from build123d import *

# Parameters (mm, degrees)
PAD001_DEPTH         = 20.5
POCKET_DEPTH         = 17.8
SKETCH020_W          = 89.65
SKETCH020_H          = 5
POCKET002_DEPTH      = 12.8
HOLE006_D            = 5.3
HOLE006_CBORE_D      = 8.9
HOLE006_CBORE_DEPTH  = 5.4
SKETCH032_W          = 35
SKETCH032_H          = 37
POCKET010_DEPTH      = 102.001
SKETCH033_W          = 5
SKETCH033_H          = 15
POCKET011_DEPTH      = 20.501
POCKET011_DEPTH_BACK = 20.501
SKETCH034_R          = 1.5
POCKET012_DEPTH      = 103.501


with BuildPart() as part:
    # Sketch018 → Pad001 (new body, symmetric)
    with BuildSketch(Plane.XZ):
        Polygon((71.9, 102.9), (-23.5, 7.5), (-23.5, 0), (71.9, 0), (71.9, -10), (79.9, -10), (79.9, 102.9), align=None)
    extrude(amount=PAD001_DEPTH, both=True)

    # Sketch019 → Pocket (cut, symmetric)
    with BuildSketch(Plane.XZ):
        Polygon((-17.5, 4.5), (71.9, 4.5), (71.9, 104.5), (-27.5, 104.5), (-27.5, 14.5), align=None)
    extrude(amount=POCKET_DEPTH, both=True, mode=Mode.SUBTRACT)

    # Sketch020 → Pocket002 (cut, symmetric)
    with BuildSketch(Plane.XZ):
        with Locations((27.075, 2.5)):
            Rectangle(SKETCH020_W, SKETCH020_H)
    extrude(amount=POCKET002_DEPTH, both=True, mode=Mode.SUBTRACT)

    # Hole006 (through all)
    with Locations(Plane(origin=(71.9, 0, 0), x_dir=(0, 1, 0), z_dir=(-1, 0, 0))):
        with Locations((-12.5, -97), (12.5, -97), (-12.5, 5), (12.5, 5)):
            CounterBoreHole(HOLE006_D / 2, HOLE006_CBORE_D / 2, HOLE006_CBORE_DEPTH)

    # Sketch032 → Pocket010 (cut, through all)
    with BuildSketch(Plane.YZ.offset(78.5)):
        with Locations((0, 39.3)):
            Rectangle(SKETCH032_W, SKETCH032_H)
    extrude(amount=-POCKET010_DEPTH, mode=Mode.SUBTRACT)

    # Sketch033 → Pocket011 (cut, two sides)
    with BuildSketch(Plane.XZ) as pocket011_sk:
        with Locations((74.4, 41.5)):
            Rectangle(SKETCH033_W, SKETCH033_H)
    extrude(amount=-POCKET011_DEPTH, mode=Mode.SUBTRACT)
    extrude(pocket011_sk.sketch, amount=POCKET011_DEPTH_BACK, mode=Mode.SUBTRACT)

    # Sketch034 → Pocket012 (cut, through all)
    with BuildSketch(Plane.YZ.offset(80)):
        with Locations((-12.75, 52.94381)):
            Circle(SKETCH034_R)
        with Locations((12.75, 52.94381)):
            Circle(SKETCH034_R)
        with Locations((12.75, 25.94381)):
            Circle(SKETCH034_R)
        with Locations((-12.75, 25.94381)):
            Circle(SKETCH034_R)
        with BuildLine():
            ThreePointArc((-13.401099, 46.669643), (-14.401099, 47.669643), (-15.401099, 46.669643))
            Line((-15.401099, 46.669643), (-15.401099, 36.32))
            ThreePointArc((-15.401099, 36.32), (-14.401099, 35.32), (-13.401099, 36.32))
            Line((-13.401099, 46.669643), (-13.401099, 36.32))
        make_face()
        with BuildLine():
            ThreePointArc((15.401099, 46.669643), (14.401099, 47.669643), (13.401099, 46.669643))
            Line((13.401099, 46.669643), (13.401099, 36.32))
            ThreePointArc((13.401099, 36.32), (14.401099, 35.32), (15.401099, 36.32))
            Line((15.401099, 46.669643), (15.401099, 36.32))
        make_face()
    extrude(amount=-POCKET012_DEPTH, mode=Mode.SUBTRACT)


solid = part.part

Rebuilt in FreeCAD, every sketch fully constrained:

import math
import FreeCAD as App
import Part
import Sketcher

V = App.Vector
Q = App.Units.Quantity


def add_polygon(sketch, points):
    """Adds a closed chain of lines whose ends are joined by coincident constraints."""
    first, n = sketch.GeometryCount, len(points)
    for a, b in zip(points, points[1:] + points[:1]):
        sketch.addGeometry(Part.LineSegment(App.Vector(*a, 0), App.Vector(*b, 0)), False)
    for i in range(n):
        sketch.addConstraint(Sketcher.Constraint("Coincident", first + i, 2, first + (i + 1) % n, 1))

doc = App.newDocument("Part")
body = doc.addObject("PartDesign::Body", "Body")

# Sketch on XZ plane
sketch1 = body.newObject("Sketcher::SketchObject", "Sketch")
sketch1.AttachmentSupport = (doc.getObject("XZ_Plane"), [""])
sketch1.MapMode = "FlatFace"
add_polygon(sketch1, [(72, 103), (-24, 8), (-24, 0), (72, 0), (72, -10), (80, -10), (80, 103)])  # lines 0-6
sketch1.addConstraint([
    Sketcher.Constraint("Vertical", 1),
    Sketcher.Constraint("Horizontal", 2),
    Sketcher.Constraint("Vertical", 3),
    Sketcher.Constraint("Horizontal", 4),
    Sketcher.Constraint("Vertical", 5),
    Sketcher.Constraint("Horizontal", 6),
    Sketcher.Constraint("PointOnObject", 1, 2, -1),
    Sketcher.Constraint("Vertical", 3, 2, 6, 2),
    Sketcher.Constraint("DistanceX", 4, 1, 4, 2, Q("8 mm")),
    Sketcher.Constraint("DistanceY", 3, 2, 3, 1, Q("10 mm")),
    Sketcher.Constraint("Angle", 0, Q("-135 deg")),
    Sketcher.Constraint("DistanceX", 2, 1, 2, 2, Q("95.4 mm")),
    Sketcher.Constraint("DistanceY", 1, 2, 1, 1, Q("7.5 mm")),
    Sketcher.Constraint("DistanceX", 0, 2, -1, 1, Q("23.5 mm")),
])
pad1 = body.newObject("PartDesign::Pad", "Pad")
pad1.Profile = sketch1
pad1.Length = 41
pad1.Midplane = True

# Sketch on XZ plane
sketch2 = body.newObject("Sketcher::SketchObject", "Sketch001")
sketch2.AttachmentSupport = (doc.getObject("XZ_Plane"), [""])
sketch2.MapMode = "FlatFace"
add_polygon(sketch2, [(-18, 4), (72, 4), (72, 104), (-28, 104), (-28, 14)])  # lines 0-4
sketch2.addConstraint([
    Sketcher.Constraint("Horizontal", 0),
    Sketcher.Constraint("Vertical", 1),
    Sketcher.Constraint("Horizontal", 2),
    Sketcher.Constraint("Vertical", 3),
    Sketcher.Constraint("DistanceY", 1, 1, 1, 2, Q("100 mm")),
    Sketcher.Constraint("DistanceY", 3, 2, 3, 1, Q("90 mm")),
    Sketcher.Constraint("Angle", 4, Q("-45 deg")),
    Sketcher.Constraint("DistanceX", 0, 1, 0, 2, Q("89.4 mm")),
    Sketcher.Constraint("DistanceX", -1, 1, 0, 2, Q("71.9 mm")),
    Sketcher.Constraint("DistanceY", -1, 1, 0, 2, Q("4.5 mm")),
])
pocket1 = body.newObject("PartDesign::Pocket", "Pocket")
pocket1.Profile = sketch2
pocket1.Length = 35.6
pocket1.Midplane = True

# Sketch on XZ plane
sketch3 = body.newObject("Sketcher::SketchObject", "Sketch002")
sketch3.AttachmentSupport = (doc.getObject("XZ_Plane"), [""])
sketch3.MapMode = "FlatFace"
add_polygon(sketch3, [(-18, 5), (-18, 0), (72, 0), (72, 5)])  # lines 0-3
sketch3.addConstraint([
    Sketcher.Constraint("Vertical", 0),
    Sketcher.Constraint("Horizontal", 1),
    Sketcher.Constraint("Vertical", 2),
    Sketcher.Constraint("Horizontal", 3),
    Sketcher.Constraint("PointOnObject", 0, 2, -1),
    Sketcher.Constraint("DistanceY", 0, 2, 0, 1, Q("5 mm")),
    Sketcher.Constraint("DistanceX", 1, 1, 1, 2, Q("89.65 mm")),
    Sketcher.Constraint("DistanceX", -1, 1, 1, 2, Q("71.9 mm")),
])
pocket2 = body.newObject("PartDesign::Pocket", "Pocket001")
pocket2.Profile = sketch3
pocket2.Length = 25.6
pocket2.Midplane = True

# Sketch on YZ plane
sketch4 = body.newObject("Sketcher::SketchObject", "Sketch003")
sketch4.AttachmentSupport = (doc.getObject("YZ_Plane"), [""])
sketch4.MapMode = "FlatFace"
sketch4.AttachmentOffset = App.Placement(V(0, 0, 71.9), App.Rotation())
sketch4.addGeometry([
    Part.Circle(V(-12.5, 97, 0), V(0, 0, 1), 2.6),
    Part.Circle(V(12.5, 97, 0), V(0, 0, 1), 2.6),
    Part.Circle(V(-12.5, -5, 0), V(0, 0, 1), 2.6),
    Part.Circle(V(12.5, -5, 0), V(0, 0, 1), 2.6),
], False)
sketch4.addConstraint([
    Sketcher.Constraint("Equal", 0, 1),
    Sketcher.Constraint("Equal", 1, 2),
    Sketcher.Constraint("Equal", 2, 3),
    Sketcher.Constraint("Symmetric", 0, 3, 1, 3, -2),
    Sketcher.Constraint("Symmetric", 2, 3, 3, 3, -2),
    Sketcher.Constraint("Vertical", 0, 3, 2, 3),
    Sketcher.Constraint("Diameter", 0, Q("5.3 mm")),
    Sketcher.Constraint("DistanceY", -1, 1, 0, 3, Q("97 mm")),
    Sketcher.Constraint("DistanceY", 2, 3, -1, 1, Q("5 mm")),
    Sketcher.Constraint("DistanceX", 0, 3, 1, 3, Q("25 mm")),
])
doc.recompute()
hole = body.newObject("PartDesign::Hole", "Hole")
hole.Profile = sketch4
hole.ThreadType = "None"
hole.Diameter = 5.3
hole.DepthType = "ThroughAll"
hole.HoleCutType = "Counterbore"
hole.HoleCutDiameter = 8.9
hole.HoleCutDepth = 5.4
hole.Reversed = True

# Sketch on YZ plane
sketch5 = body.newObject("Sketcher::SketchObject", "Sketch004")
sketch5.AttachmentSupport = (doc.getObject("YZ_Plane"), [""])
sketch5.MapMode = "FlatFace"
sketch5.AttachmentOffset = App.Placement(V(0, 0, 78.5), App.Rotation())
add_polygon(sketch5, [(-18, 58), (-18, 21), (18, 21), (18, 58)])  # lines 0-3
sketch5.addConstraint([
    Sketcher.Constraint("Vertical", 0),
    Sketcher.Constraint("Horizontal", 1),
    Sketcher.Constraint("Vertical", 2),
    Sketcher.Constraint("Horizontal", 3),
    Sketcher.Constraint("DistanceX", 1, 1, 1, 2, Q("35 mm")),
    Sketcher.Constraint("DistanceY", 0, 2, 0, 1, Q("37 mm")),
    Sketcher.Constraint("DistanceX", 0, 2, -1, 1, Q("17.5 mm")),
    Sketcher.Constraint("DistanceY", -1, 1, 0, 2, Q("20.8 mm")),
])
pocket3 = body.newObject("PartDesign::Pocket", "Pocket002")
pocket3.Profile = sketch5
pocket3.Type = "ThroughAll"

# Sketch on XZ plane
sketch6 = body.newObject("Sketcher::SketchObject", "Sketch005")
sketch6.AttachmentSupport = (doc.getObject("XZ_Plane"), [""])
sketch6.MapMode = "FlatFace"
add_polygon(sketch6, [(72, 49), (72, 34), (77, 34), (77, 49)])  # lines 0-3
sketch6.addConstraint([
    Sketcher.Constraint("Vertical", 0),
    Sketcher.Constraint("Horizontal", 1),
    Sketcher.Constraint("Vertical", 2),
    Sketcher.Constraint("Horizontal", 3),
    Sketcher.Constraint("DistanceX", 1, 1, 1, 2, Q("5 mm")),
    Sketcher.Constraint("DistanceY", 0, 2, 0, 1, Q("15 mm")),
    Sketcher.Constraint("DistanceY", -1, 1, 0, 2, Q("34 mm")),
    Sketcher.Constraint("DistanceX", -1, 1, 0, 2, Q("71.9 mm")),
])
pocket4 = body.newObject("PartDesign::Pocket", "Pocket003")
pocket4.Profile = sketch6
pocket4.Type = "ThroughAll"
pocket4.Midplane = True

# Sketch on YZ plane
sketch7 = body.newObject("Sketcher::SketchObject", "Sketch006")
sketch7.AttachmentSupport = (doc.getObject("YZ_Plane"), [""])
sketch7.MapMode = "FlatFace"
sketch7.AttachmentOffset = App.Placement(V(0, 0, 80), App.Rotation())
sketch7.addGeometry([
    Part.Circle(V(-12.8, 52.9, 0), V(0, 0, 1), 1.5),  # 0
    Part.Circle(V(12.8, 52.9, 0), V(0, 0, 1), 1.5),  # 1
    Part.Circle(V(12.8, 25.9, 0), V(0, 0, 1), 1.5),  # 2
    Part.Circle(V(-12.8, 25.9, 0), V(0, 0, 1), 1.5),  # 3
    Part.ArcOfCircle(Part.Circle(V(-14.4, 46.7, 0), V(0, 0, 1), 1), math.radians(0), math.radians(180)),  # 4
    Part.LineSegment(V(-15.4, 46.7, 0), V(-15.4, 36.3, 0)),  # 5
    Part.ArcOfCircle(Part.Circle(V(-14.4, 36.3, 0), V(0, 0, 1), 1), math.radians(180), math.radians(360)),  # 6
    Part.LineSegment(V(-13.4, 36.3, 0), V(-13.4, 46.7, 0)),  # 7
    Part.ArcOfCircle(Part.Circle(V(14.4, 46.7, 0), V(0, 0, 1), 1), math.radians(0), math.radians(180)),  # 8
    Part.LineSegment(V(13.4, 46.7, 0), V(13.4, 36.3, 0)),  # 9
    Part.ArcOfCircle(Part.Circle(V(14.4, 36.3, 0), V(0, 0, 1), 1), math.radians(180), math.radians(360)),  # 10
    Part.LineSegment(V(15.4, 36.3, 0), V(15.4, 46.7, 0)),  # 11
], False)
sketch7.addConstraint([
    Sketcher.Constraint("Tangent", 4, 2, 5, 1),
    Sketcher.Constraint("Tangent", 5, 2, 6, 1),
    Sketcher.Constraint("Tangent", 6, 2, 7, 1),
    Sketcher.Constraint("Tangent", 7, 2, 4, 1),
    Sketcher.Constraint("Tangent", 8, 2, 9, 1),
    Sketcher.Constraint("Tangent", 9, 2, 10, 1),
    Sketcher.Constraint("Tangent", 10, 2, 11, 1),
    Sketcher.Constraint("Tangent", 11, 2, 8, 1),
    Sketcher.Constraint("Vertical", 5),
    Sketcher.Constraint("Vertical", 7),
    Sketcher.Constraint("Vertical", 9),
    Sketcher.Constraint("Vertical", 11),
    Sketcher.Constraint("Equal", 0, 1),
    Sketcher.Constraint("Equal", 1, 2),
    Sketcher.Constraint("Equal", 2, 3),
    Sketcher.Constraint("Equal", 6, 8),
    Sketcher.Constraint("Symmetric", 0, 3, 1, 3, -2),
    Sketcher.Constraint("Symmetric", 2, 3, 3, 3, -2),
    Sketcher.Constraint("Symmetric", 4, 3, 8, 3, -2),
    Sketcher.Constraint("Horizontal", 6, 3, 10, 3),
    Sketcher.Constraint("Vertical", 1, 3, 2, 3),
    Sketcher.Constraint("Diameter", 0, Q("3 mm")),
    Sketcher.Constraint("Radius", 4, Q("1 mm")),
    Sketcher.Constraint("DistanceY", 2, 3, 1, 3, Q("27 mm")),
    Sketcher.Constraint("DistanceX", 0, 3, 1, 3, Q("25.5 mm")),
    Sketcher.Constraint("DistanceY", -1, 1, 6, 3, Q("36.32 mm")),
    Sketcher.Constraint("DistanceX", 4, 3, -1, 1, Q("14.401099 mm")),
    Sketcher.Constraint("DistanceY", 5, 2, 5, 1, Q("10.349643 mm")),
    Sketcher.Constraint("DistanceY", -1, 1, 0, 3, Q("52.94381 mm")),
])
pocket5 = body.newObject("PartDesign::Pocket", "Pocket004")
pocket5.Profile = sketch7
pocket5.Type = "ThroughAll"

doc.recompute()
